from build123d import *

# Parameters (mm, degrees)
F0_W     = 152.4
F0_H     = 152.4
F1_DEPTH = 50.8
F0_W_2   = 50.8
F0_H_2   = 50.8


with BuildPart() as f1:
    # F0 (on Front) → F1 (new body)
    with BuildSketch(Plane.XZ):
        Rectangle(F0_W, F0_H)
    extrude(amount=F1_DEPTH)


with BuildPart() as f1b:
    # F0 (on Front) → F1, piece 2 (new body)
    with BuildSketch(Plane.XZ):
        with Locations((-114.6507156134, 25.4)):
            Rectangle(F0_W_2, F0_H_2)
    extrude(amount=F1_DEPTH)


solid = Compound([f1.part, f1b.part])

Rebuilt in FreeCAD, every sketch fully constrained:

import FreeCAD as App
import Part
import Sketcher
Q = App.Units.Quantity

doc = App.newDocument("Part")
body = doc.addObject("PartDesign::Body", "Body")

# Sketch on XZ plane
sketch1 = body.newObject("Sketcher::SketchObject", "Sketch")
sketch1.AttachmentSupport = (doc.getObject("XZ_Plane"), [""])
sketch1.MapMode = "FlatFace"
sketch1.addGeometry(Part.LineSegment(App.Vector(-76, 76, 0), App.Vector(-76, -76, 0)), False)
sketch1.addGeometry(Part.LineSegment(App.Vector(-76, -76, 0), App.Vector(76, -76, 0)), False)
sketch1.addGeometry(Part.LineSegment(App.Vector(76, -76, 0), App.Vector(76, 76, 0)), False)
sketch1.addGeometry(Part.LineSegment(App.Vector(76, 76, 0), App.Vector(-76, 76, 0)), False)
sketch1.addConstraint(Sketcher.Constraint("Coincident", 0, 2, 1, 1))
sketch1.addConstraint(Sketcher.Constraint("Coincident", 1, 2, 2, 1))
sketch1.addConstraint(Sketcher.Constraint("Coincident", 2, 2, 3, 1))
sketch1.addConstraint(Sketcher.Constraint("Coincident", 3, 2, 0, 1))
sketch1.addConstraint(Sketcher.Constraint("Vertical", 0))
sketch1.addConstraint(Sketcher.Constraint("Horizontal", 1))
sketch1.addConstraint(Sketcher.Constraint("Vertical", 2))
sketch1.addConstraint(Sketcher.Constraint("Horizontal", 3))
sketch1.addConstraint(Sketcher.Constraint("Symmetric", 0, 2, 2, 2, -1, 1))
sketch1.addConstraint(Sketcher.Constraint("Equal", 3, 0))
sketch1.addConstraint(Sketcher.Constraint("DistanceX", 1, 1, 1, 2, Q("6 in")))
pad1 = body.newObject("PartDesign::Pad", "Pad")
pad1.Profile = sketch1
pad1.Length = Q("2 in")
body2 = doc.addObject("PartDesign::Body", "Body001")

# Sketch on XZ plane
sketch2 = body2.newObject("Sketcher::SketchObject", "Sketch001")
sketch2.AttachmentSupport = (doc.getObject("XZ_Plane001"), [""])
sketch2.MapMode = "FlatFace"
sketch2.addGeometry(Part.LineSegment(App.Vector(-140, 51, 0), App.Vector(-140, 0, 0)), False)
sketch2.addGeometry(Part.LineSegment(App.Vector(-140, 0, 0), App.Vector(-89, 0, 0)), False)
sketch2.addGeometry(Part.LineSegment(App.Vector(-89, 0, 0), App.Vector(-89, 51, 0)), False)
sketch2.addGeometry(Part.LineSegment(App.Vector(-89, 51, 0), App.Vector(-140, 51, 0)), False)
sketch2.addConstraint(Sketcher.Constraint("Coincident", 0, 2, 1, 1))
sketch2.addConstraint(Sketcher.Constraint("Coincident", 1, 2, 2, 1))
sketch2.addConstraint(Sketcher.Constraint("Coincident", 2, 2, 3, 1))
sketch2.addConstraint(Sketcher.Constraint("Coincident", 3, 2, 0, 1))
sketch2.addConstraint(Sketcher.Constraint("Vertical", 0))
sketch2.addConstraint(Sketcher.Constraint("Horizontal", 1))
sketch2.addConstraint(Sketcher.Constraint("Vertical", 2))
sketch2.addConstraint(Sketcher.Constraint("Horizontal", 3))
sketch2.addConstraint(Sketcher.Constraint("PointOnObject", 0, 2, -1))
sketch2.addConstraint(Sketcher.Constraint("Equal", 3, 0))
sketch2.addConstraint(Sketcher.Constraint("DistanceX", 1, 1, 1, 2, Q("2 in")))
sketch2.addConstraint(Sketcher.Constraint("DistanceX", 0, 2, -1, 1, 140.050716))
pad2 = body2.newObject("PartDesign::Pad", "Pad001")
pad2.Profile = sketch2
pad2.Length = Q("2 in")

doc.recompute()
